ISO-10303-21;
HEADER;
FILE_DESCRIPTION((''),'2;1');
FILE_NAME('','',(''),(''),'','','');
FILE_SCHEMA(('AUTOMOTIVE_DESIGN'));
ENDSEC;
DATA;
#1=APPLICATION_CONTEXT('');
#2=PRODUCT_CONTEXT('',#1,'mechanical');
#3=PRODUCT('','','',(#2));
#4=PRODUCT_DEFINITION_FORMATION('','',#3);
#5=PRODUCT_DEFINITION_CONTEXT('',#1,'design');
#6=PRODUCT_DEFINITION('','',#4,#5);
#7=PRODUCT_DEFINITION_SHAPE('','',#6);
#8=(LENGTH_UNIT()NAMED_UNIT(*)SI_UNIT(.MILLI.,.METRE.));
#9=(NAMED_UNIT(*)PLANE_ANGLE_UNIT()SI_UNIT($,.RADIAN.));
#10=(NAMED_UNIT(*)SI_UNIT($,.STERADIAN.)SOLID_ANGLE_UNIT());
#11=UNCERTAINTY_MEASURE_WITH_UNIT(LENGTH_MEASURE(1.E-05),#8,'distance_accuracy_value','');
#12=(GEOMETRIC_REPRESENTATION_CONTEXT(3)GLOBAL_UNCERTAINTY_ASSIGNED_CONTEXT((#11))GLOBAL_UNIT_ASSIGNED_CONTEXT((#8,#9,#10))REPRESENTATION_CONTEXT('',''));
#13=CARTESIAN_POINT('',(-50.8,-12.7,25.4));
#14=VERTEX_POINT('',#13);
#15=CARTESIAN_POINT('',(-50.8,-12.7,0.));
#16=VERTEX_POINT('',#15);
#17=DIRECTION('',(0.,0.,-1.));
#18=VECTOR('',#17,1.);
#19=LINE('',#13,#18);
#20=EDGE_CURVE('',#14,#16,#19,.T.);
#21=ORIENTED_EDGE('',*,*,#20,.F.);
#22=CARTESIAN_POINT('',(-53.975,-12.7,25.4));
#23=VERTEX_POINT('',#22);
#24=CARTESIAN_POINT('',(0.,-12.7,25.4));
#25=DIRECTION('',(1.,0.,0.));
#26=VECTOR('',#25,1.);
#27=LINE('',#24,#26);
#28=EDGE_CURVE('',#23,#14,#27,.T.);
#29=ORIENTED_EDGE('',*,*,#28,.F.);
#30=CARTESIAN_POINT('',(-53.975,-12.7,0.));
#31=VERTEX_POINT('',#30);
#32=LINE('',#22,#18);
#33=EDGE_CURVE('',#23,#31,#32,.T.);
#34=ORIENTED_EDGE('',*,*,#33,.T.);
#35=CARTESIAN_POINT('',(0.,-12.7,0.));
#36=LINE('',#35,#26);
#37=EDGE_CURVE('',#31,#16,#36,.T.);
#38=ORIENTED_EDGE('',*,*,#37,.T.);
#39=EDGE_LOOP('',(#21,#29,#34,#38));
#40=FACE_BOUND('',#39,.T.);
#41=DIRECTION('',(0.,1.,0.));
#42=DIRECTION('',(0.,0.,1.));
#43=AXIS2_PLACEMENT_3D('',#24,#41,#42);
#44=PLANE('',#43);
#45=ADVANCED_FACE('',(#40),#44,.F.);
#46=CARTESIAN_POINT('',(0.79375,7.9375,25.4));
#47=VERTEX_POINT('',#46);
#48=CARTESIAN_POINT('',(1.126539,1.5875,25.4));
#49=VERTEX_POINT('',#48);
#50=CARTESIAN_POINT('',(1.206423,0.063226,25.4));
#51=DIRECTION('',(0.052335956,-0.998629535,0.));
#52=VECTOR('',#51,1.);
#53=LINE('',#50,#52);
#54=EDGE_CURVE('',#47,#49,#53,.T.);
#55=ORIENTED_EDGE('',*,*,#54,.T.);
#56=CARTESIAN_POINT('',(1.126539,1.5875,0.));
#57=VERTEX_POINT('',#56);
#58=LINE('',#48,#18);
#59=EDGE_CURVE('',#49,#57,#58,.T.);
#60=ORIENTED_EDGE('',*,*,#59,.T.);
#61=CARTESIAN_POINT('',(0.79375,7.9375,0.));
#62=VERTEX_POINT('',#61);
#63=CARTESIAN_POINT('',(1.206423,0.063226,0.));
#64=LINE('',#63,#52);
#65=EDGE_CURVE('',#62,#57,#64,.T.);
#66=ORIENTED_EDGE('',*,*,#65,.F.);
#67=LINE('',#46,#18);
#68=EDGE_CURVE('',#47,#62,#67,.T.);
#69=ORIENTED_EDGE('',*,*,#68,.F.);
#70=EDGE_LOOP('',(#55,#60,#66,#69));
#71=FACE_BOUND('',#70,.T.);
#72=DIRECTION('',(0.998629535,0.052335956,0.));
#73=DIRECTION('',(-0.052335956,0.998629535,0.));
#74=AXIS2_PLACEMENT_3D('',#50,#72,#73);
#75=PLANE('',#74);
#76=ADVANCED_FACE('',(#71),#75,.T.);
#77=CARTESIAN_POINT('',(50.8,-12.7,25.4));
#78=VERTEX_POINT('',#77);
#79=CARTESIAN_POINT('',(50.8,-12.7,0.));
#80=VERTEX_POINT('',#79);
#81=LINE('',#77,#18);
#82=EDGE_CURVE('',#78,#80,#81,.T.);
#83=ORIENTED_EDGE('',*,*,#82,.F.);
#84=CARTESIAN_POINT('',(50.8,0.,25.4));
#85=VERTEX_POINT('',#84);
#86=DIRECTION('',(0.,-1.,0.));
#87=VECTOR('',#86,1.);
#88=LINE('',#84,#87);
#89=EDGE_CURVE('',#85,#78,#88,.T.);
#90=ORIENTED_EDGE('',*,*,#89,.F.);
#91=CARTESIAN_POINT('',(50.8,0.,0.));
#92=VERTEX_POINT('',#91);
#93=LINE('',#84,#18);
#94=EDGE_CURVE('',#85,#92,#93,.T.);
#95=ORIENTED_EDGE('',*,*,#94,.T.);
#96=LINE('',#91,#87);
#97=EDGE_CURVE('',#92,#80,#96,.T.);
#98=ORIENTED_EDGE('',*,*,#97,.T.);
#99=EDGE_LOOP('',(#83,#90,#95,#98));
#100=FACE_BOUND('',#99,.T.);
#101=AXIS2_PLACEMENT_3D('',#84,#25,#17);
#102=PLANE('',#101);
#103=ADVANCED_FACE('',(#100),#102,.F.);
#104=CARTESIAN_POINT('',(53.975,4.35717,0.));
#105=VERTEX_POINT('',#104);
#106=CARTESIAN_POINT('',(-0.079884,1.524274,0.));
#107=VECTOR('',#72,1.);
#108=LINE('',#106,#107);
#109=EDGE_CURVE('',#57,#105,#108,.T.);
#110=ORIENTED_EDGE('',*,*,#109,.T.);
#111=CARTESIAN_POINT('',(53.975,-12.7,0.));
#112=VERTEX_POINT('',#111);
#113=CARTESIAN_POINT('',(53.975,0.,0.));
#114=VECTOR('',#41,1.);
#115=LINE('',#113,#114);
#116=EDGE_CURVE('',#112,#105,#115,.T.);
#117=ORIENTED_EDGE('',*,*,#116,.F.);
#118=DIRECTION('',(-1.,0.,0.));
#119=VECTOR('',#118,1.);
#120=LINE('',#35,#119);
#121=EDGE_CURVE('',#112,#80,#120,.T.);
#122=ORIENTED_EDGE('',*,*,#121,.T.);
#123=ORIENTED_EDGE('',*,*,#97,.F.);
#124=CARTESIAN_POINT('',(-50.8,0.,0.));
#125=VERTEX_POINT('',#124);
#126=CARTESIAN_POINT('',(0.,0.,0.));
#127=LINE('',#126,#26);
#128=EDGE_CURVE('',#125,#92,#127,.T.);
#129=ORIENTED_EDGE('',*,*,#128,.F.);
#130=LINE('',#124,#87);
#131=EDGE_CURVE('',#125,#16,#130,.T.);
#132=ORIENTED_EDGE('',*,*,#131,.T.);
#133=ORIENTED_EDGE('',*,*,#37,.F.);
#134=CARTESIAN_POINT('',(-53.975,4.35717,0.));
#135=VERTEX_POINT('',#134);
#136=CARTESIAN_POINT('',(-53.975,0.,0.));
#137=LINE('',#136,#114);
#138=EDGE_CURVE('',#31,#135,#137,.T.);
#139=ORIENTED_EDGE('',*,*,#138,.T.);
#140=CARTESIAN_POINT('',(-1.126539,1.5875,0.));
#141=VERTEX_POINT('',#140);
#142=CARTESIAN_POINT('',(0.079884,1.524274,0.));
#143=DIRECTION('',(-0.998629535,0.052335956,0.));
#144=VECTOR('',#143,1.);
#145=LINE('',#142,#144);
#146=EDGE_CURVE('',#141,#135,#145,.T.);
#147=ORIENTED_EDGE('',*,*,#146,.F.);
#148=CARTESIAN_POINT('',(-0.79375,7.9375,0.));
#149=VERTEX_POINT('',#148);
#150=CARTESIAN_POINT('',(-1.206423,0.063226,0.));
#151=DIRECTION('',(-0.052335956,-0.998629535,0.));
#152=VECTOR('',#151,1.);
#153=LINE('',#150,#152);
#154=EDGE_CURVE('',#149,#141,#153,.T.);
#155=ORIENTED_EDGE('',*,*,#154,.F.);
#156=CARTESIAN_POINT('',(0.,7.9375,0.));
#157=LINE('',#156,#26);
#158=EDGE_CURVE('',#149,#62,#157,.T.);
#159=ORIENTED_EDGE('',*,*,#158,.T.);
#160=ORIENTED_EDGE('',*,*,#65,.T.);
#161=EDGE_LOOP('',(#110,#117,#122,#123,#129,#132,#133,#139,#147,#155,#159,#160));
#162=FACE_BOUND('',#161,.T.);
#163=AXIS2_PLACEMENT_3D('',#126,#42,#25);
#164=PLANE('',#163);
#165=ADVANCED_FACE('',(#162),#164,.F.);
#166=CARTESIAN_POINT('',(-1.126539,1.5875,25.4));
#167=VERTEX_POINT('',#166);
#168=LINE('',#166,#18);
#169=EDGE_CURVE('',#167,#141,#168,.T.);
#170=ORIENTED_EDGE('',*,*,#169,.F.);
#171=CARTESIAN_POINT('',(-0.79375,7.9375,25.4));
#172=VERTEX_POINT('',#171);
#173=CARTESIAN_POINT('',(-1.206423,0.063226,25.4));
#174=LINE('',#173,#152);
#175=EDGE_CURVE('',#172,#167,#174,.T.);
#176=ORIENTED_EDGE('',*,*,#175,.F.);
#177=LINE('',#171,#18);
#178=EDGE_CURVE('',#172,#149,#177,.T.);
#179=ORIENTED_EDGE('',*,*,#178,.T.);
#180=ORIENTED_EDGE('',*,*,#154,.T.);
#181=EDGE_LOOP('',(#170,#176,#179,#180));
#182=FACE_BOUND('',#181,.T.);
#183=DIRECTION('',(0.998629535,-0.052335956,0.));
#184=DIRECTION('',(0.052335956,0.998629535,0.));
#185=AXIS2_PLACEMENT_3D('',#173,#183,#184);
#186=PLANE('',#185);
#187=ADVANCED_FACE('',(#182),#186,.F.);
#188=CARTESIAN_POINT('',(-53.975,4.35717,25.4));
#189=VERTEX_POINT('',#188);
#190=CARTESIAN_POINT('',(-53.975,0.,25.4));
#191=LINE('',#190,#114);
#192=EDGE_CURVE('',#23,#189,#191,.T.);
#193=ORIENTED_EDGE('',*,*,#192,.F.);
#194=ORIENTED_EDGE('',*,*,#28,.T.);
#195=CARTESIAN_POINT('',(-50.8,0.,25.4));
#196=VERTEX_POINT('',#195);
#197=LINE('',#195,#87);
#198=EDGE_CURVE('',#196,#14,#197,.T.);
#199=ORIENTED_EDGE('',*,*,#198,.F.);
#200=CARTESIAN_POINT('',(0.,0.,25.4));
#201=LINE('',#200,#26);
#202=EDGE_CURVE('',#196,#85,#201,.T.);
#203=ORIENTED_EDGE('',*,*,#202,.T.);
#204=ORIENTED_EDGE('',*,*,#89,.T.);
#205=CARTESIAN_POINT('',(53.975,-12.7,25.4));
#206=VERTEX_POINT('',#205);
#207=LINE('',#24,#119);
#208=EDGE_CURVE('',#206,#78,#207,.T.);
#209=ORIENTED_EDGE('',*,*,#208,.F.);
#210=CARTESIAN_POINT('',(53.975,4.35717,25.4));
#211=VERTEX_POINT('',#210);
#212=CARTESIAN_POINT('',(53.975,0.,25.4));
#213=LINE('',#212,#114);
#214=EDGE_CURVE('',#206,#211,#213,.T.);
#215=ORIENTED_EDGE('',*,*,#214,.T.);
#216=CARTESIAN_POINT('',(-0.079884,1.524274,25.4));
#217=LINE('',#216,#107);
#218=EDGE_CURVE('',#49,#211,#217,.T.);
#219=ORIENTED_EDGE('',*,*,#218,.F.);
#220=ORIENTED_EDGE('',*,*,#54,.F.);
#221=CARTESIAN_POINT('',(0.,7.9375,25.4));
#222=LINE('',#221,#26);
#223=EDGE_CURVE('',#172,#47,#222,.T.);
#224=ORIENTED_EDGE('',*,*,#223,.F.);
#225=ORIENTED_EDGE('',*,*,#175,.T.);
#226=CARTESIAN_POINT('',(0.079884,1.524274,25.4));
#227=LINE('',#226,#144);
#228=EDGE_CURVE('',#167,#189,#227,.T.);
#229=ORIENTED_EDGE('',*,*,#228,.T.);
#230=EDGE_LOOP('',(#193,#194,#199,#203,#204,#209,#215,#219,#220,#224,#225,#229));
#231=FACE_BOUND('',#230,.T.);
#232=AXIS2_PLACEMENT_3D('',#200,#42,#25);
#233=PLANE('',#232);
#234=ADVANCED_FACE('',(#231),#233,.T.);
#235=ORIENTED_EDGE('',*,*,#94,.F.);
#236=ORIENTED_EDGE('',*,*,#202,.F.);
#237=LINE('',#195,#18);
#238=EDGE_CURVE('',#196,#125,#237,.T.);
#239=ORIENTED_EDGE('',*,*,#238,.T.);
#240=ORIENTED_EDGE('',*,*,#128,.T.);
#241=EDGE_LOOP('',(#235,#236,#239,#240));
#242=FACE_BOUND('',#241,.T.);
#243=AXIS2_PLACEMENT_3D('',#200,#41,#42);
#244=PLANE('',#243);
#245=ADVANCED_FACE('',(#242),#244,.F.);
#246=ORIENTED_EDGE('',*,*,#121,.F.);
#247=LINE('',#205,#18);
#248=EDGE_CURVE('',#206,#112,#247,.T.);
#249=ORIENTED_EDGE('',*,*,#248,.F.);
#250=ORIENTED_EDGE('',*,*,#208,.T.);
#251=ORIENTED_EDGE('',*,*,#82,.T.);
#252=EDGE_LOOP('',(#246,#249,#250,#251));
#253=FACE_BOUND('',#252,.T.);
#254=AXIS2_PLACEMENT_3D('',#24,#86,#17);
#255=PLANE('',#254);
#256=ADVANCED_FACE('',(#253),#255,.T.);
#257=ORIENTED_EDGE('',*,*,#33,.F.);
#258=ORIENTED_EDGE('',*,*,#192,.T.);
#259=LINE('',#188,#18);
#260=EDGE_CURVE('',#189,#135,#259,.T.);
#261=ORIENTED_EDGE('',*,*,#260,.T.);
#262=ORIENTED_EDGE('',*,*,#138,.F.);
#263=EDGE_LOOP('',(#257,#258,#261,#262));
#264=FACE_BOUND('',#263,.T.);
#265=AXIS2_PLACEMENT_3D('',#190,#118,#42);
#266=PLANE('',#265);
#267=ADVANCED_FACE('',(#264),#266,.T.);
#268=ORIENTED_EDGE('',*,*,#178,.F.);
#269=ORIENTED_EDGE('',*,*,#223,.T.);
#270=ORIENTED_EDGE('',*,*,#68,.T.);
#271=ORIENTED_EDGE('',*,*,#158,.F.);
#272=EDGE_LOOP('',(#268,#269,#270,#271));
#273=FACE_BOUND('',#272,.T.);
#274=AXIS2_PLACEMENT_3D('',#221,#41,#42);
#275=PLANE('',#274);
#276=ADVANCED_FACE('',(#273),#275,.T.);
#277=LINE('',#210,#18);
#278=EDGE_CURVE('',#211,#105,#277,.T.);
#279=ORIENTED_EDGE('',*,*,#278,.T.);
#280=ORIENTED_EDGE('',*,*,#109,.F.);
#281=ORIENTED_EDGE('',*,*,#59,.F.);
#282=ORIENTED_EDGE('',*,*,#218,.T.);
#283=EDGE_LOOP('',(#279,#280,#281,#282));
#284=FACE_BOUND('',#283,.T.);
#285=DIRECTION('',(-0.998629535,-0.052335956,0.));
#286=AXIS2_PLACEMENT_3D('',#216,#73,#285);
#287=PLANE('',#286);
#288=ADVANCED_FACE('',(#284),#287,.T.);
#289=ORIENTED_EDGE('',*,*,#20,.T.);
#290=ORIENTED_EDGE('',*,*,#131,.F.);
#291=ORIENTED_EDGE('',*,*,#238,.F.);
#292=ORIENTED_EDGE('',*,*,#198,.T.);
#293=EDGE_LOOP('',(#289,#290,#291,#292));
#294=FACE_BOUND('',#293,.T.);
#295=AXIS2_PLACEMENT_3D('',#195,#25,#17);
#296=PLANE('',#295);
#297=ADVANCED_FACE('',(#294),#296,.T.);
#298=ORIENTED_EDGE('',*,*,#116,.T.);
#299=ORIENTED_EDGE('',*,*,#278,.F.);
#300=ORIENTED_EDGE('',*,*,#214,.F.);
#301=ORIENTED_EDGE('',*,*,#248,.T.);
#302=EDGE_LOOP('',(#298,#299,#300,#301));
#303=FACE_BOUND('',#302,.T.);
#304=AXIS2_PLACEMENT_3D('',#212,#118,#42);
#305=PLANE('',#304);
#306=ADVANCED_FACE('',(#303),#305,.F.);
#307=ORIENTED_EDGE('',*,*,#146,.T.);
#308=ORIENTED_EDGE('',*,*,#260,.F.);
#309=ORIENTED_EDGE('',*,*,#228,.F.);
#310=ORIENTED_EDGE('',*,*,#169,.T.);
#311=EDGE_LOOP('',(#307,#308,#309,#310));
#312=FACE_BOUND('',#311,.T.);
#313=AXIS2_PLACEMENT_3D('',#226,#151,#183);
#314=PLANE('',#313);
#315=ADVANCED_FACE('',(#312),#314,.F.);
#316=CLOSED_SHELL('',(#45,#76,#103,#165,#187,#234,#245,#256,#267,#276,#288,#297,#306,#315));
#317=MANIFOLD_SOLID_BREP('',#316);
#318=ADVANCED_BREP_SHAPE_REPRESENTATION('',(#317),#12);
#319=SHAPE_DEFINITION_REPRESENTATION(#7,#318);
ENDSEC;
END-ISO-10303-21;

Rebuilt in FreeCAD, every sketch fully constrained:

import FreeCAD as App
import Part
import Sketcher
Q = App.Units.Quantity

doc = App.newDocument("Part")
body = doc.addObject("PartDesign::Body", "Body")

# Sketch on XY plane
sketch1 = body.newObject("Sketcher::SketchObject", "Sketch")
sketch1.AttachmentSupport = (doc.getObject("XY_Plane"), [""])
sketch1.MapMode = "FlatFace"
sketch1.addGeometry([
    Part.LineSegment(App.Vector(0, 0, 0), App.Vector(50.8, 0, 0)),  # 0
    Part.LineSegment(App.Vector(50.8, 0, 0), App.Vector(50.8, -12.7, 0)),  # 1
    Part.LineSegment(App.Vector(50.8, -12.7, 0), App.Vector(53.975, -12.7, 0)),  # 2
    Part.LineSegment(App.Vector(53.975, -12.7, 0), App.Vector(53.975, 4.35717, 0)),  # 3
    Part.LineSegment(App.Vector(53.975, 4.35717, 0), App.Vector(1.126539, 1.5875, 0)),  # 4
    Part.LineSegment(App.Vector(1.126539, 1.5875, 0), App.Vector(0.79375, 7.9375, 0)),  # 5
    Part.LineSegment(App.Vector(0.79375, 7.9375, 0), App.Vector(0, 7.9375, 0)),  # 6
    Part.LineSegment(App.Vector(0, 7.9375, 0), App.Vector(0, 0, 0)),  # 7
], False)
sketch1.addConstraint([
    Sketcher.Constraint("Coincident", 0, 2, 1, 1),
    Sketcher.Constraint("Coincident", 1, 2, 2, 1),
    Sketcher.Constraint("Coincident", 2, 2, 3, 1),
    Sketcher.Constraint("Coincident", 3, 2, 4, 1),
    Sketcher.Constraint("Coincident", 4, 2, 5, 1),
    Sketcher.Constraint("Coincident", 5, 2, 6, 1),
    Sketcher.Constraint("Coincident", 6, 2, 7, 1),
    Sketcher.Constraint("Coincident", 7, 2, 0, 1),
    Sketcher.Constraint("Horizontal", 0),
    Sketcher.Constraint("Vertical", 1),
    Sketcher.Constraint("Horizontal", 2),
    Sketcher.Constraint("Vertical", 3),
    Sketcher.Constraint("Horizontal", 6),
    Sketcher.Constraint("Vertical", 7),
    Sketcher.Constraint("Coincident", 7, 2, -1, 1),
    Sketcher.Constraint("Perpendicular", 4, 5),
    Sketcher.Constraint("DistanceX", 0, 1, 0, 2, Q("2 in")),
    Sketcher.Constraint("DistanceY", 1, 2, 1, 1, Q("0.5 in")),
    Sketcher.Constraint("Angle", 4, Q("-177 deg")),
    Sketcher.Constraint("DistanceX", 2, 1, 2, 2, Q("0.125 in")),
    Sketcher.Constraint("DistanceX", 6, 2, 6, 1, Q("0.03125 in")),
    Sketcher.Constraint("DistanceY", 7, 2, 7, 1, Q("0.3125 in")),
    Sketcher.Constraint("DistanceY", 4, 2, 5, 2, Q("0.25 in")),
])
pad1 = body.newObject("PartDesign::Pad", "Pad")
pad1.Profile = sketch1
pad1.Length = Q("1 in")
doc.recompute()

mirrored = body.newObject("PartDesign::Mirrored", "Mirrored")
mirrored.Originals = [pad1]
mirrored.MirrorPlane = (doc.getObject("YZ_Plane"), [""])
body.Tip = mirrored

doc.recompute()
